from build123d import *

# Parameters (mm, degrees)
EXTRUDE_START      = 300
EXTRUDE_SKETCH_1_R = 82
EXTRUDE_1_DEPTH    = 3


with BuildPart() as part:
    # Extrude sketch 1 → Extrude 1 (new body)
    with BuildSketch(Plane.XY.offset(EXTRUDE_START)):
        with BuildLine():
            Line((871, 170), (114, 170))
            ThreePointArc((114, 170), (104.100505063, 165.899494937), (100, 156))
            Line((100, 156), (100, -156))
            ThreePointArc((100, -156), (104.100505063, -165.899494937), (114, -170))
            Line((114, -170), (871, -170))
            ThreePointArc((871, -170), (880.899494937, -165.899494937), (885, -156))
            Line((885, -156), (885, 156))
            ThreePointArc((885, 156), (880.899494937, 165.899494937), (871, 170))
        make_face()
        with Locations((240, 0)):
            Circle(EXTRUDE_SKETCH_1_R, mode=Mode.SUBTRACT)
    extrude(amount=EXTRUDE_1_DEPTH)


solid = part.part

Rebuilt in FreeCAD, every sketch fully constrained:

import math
import FreeCAD as App
import Part
import Sketcher
from FreeCAD import Vector

doc = App.newDocument("Part")
body = doc.addObject("PartDesign::Body", "Body")

# Sketch on XY plane
sketch1 = body.newObject("Sketcher::SketchObject", "Sketch")
sketch1.AttachmentSupport = (doc.getObject("XY_Plane"), [""])
sketch1.MapMode = "FlatFace"
sketch1.AttachmentOffset = App.Placement(Vector(0, 0, 300), App.Rotation())
sketch1.addGeometry([
    Part.LineSegment(Vector(871, 170, 0), Vector(114, 170, 0)),  # 0
    Part.ArcOfCircle(Part.Circle(Vector(114, 156, 0), Vector(0, 0, 1), 14), math.radians(90), math.radians(180)),  # 1
    Part.LineSegment(Vector(100, 156, 0), Vector(100, -156, 0)),  # 2
    Part.ArcOfCircle(Part.Circle(Vector(114, -156, 0), Vector(0, 0, 1), 14), math.radians(180), math.radians(270)),  # 3
    Part.LineSegment(Vector(114, -170, 0), Vector(871, -170, 0)),  # 4
    Part.ArcOfCircle(Part.Circle(Vector(871, -156, 0), Vector(0, 0, 1), 14), math.radians(-90), math.radians(0)),  # 5
    Part.LineSegment(Vector(885, -156, 0), Vector(885, 156, 0)),  # 6
    Part.ArcOfCircle(Part.Circle(Vector(871, 156, 0), Vector(0, 0, 1), 14), math.radians(0), math.radians(90)),  # 7
    Part.Circle(Vector(240, 0, 0), Vector(0, 0, 1), 82),  # 8
], False)
sketch1.addConstraint([
    Sketcher.Constraint("Tangent", 0, 2, 1, 1),
    Sketcher.Constraint("Tangent", 1, 2, 2, 1),
    Sketcher.Constraint("Tangent", 2, 2, 3, 1),
    Sketcher.Constraint("Tangent", 3, 2, 4, 1),
    Sketcher.Constraint("Tangent", 4, 2, 5, 1),
    Sketcher.Constraint("Tangent", 5, 2, 6, 1),
    Sketcher.Constraint("Tangent", 6, 2, 7, 1),
    Sketcher.Constraint("Tangent", 7, 2, 0, 1),
    Sketcher.Constraint("Horizontal", 0),
    Sketcher.Constraint("Vertical", 2),
    Sketcher.Constraint("Horizontal", 4),
    Sketcher.Constraint("Vertical", 6),
    Sketcher.Constraint("Equal", 1, 3),
    Sketcher.Constraint("Equal", 3, 5),
    Sketcher.Constraint("Equal", 5, 7),
    Sketcher.Constraint("PointOnObject", 8, 3, -1),
    Sketcher.Constraint("Diameter", 8, 164.0),
    Sketcher.Constraint("Radius", 1, 14.0),
    Sketcher.Constraint("DistanceX", 0, 2, 0, 1, 757.0),
    Sketcher.Constraint("DistanceY", 2, 2, 2, 1, 312.0),
    Sketcher.Constraint("DistanceX", -1, 1, 1, 3, 114.0),
    Sketcher.Constraint("DistanceY", -1, 1, 1, 3, 156.0),
    Sketcher.Constraint("DistanceX", -1, 1, 8, 3, 240.0),
])
pad1 = body.newObject("PartDesign::Pad", "Pad")
pad1.Profile = sketch1
pad1.Length = 3

doc.recompute()
